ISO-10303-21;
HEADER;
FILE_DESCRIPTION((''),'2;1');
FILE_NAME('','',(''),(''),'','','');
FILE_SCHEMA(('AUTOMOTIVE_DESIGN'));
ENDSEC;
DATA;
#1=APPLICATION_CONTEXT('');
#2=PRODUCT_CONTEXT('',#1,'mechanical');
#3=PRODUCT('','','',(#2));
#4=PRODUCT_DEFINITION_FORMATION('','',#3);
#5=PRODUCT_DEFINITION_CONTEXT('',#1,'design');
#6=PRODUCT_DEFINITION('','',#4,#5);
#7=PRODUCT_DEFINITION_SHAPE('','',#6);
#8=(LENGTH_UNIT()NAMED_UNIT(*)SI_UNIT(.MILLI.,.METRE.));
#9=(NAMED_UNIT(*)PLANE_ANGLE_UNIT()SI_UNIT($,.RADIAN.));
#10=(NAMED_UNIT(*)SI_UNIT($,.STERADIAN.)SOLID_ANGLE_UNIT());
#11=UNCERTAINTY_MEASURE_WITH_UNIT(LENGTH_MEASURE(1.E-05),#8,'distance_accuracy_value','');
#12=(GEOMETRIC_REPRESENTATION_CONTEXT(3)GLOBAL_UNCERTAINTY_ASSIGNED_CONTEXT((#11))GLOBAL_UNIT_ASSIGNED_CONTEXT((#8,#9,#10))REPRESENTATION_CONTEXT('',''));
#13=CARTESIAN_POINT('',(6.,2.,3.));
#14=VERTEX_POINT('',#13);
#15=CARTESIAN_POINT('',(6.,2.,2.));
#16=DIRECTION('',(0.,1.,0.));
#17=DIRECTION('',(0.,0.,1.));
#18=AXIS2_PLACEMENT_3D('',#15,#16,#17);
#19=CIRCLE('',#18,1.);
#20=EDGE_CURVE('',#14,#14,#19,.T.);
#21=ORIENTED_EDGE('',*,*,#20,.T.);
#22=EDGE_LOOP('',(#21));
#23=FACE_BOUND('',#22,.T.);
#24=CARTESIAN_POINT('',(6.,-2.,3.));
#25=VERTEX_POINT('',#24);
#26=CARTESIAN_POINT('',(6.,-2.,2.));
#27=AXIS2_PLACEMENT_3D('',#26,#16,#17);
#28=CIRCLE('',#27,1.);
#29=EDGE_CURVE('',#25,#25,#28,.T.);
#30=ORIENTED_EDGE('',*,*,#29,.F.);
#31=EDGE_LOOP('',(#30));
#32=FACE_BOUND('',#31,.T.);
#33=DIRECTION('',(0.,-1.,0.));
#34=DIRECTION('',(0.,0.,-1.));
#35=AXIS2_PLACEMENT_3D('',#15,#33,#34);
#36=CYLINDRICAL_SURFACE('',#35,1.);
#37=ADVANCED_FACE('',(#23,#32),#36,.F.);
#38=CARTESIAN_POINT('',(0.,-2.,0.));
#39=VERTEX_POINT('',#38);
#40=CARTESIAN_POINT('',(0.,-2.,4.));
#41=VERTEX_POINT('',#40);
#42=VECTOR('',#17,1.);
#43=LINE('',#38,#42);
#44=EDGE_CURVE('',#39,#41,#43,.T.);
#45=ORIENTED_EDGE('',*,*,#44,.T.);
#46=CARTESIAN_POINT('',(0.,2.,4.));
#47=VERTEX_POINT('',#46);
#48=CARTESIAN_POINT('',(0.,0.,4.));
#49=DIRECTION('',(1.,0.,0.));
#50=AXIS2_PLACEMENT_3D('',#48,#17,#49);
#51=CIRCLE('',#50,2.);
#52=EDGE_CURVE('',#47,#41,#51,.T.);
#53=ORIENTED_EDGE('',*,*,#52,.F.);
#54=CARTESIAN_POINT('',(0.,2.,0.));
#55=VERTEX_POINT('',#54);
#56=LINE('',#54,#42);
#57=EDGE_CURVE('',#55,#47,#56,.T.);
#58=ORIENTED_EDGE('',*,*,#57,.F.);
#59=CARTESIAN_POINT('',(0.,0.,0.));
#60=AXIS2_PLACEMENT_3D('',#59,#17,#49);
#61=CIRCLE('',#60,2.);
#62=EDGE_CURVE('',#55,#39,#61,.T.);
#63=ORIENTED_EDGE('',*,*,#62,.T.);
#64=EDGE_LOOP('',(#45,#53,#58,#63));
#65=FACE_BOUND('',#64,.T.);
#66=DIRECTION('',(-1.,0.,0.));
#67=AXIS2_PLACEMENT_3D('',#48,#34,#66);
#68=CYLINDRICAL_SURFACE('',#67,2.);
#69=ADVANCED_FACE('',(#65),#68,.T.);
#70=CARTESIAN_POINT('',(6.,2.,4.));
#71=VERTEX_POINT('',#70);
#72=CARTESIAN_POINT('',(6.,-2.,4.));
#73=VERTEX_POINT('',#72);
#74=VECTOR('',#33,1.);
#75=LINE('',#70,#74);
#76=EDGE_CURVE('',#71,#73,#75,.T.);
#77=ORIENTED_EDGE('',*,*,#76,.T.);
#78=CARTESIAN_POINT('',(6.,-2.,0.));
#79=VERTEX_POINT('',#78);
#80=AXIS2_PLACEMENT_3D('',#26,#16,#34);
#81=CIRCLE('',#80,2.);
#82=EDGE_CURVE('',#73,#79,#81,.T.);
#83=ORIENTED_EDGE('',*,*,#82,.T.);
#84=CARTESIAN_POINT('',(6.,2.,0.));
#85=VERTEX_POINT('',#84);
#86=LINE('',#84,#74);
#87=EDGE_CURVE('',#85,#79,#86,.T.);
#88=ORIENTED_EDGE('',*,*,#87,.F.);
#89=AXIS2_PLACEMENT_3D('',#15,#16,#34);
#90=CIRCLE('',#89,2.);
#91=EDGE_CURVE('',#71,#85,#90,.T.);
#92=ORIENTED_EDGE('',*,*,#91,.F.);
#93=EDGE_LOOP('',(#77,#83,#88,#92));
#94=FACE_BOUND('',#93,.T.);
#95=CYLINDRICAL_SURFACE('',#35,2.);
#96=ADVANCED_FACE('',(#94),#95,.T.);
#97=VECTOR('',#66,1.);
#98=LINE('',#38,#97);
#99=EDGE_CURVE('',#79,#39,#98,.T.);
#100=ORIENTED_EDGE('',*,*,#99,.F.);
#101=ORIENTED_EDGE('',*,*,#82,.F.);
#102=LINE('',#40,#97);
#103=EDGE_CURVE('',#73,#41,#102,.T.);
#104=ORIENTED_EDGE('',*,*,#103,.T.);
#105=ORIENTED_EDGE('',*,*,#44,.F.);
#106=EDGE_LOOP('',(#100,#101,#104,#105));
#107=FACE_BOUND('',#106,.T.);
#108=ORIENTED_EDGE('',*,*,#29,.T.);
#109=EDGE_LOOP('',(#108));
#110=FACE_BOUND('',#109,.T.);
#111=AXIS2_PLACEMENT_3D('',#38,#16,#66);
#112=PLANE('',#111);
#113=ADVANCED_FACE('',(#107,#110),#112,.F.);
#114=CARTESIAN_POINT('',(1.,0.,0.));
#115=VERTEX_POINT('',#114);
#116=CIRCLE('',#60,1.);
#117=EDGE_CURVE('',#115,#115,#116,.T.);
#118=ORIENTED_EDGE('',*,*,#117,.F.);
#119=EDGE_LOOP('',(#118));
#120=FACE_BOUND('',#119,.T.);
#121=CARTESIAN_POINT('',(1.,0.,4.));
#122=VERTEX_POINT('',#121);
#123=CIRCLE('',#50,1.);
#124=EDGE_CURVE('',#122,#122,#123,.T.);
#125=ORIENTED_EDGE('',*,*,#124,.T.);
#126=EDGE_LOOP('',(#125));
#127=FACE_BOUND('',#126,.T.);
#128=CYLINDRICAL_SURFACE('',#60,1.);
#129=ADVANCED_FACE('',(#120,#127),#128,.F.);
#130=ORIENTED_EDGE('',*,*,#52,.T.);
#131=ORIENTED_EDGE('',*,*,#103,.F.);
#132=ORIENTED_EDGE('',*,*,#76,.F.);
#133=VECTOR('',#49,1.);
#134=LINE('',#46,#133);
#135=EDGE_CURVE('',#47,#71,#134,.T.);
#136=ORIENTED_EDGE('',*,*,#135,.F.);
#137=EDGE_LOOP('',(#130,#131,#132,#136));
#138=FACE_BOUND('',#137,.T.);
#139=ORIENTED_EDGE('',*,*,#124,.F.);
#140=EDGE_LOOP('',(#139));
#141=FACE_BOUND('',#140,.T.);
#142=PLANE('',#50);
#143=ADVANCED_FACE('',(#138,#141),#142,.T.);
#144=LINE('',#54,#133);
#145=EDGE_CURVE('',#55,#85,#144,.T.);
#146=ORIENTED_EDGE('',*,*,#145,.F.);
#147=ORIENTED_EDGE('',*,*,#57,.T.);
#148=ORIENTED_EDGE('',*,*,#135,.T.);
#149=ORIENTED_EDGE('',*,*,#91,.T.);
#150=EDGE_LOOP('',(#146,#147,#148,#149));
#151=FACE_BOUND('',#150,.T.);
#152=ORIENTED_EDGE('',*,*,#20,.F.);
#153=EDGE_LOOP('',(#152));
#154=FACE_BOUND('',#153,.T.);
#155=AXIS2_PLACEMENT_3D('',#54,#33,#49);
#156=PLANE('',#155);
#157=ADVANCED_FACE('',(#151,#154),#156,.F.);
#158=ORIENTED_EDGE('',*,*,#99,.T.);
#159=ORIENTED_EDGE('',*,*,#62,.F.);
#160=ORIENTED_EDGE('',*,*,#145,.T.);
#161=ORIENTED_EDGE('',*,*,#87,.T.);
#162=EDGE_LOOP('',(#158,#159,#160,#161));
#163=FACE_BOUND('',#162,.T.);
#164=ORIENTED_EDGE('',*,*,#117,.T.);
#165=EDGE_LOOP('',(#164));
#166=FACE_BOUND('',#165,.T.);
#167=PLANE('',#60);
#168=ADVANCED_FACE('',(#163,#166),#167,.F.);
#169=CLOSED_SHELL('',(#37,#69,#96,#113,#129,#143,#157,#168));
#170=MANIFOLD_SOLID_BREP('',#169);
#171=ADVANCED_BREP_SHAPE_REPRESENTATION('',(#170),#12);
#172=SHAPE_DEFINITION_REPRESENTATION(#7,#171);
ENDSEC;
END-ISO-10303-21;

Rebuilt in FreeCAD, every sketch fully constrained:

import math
import FreeCAD as App
import Part
import Sketcher

doc = App.newDocument("Part")
body = doc.addObject("PartDesign::Body", "Body")

# Sketch on XY plane
sketch1 = body.newObject("Sketcher::SketchObject", "Sketch")
sketch1.AttachmentSupport = (doc.getObject("XY_Plane"), [""])
sketch1.MapMode = "FlatFace"
sketch1.addGeometry(Part.Circle(App.Vector(0, 0, 0), App.Vector(0, 0, 1), 2), False)
sketch1.addConstraint([
    Sketcher.Constraint("Coincident", 0, 3, -1, 1),
    Sketcher.Constraint("Diameter", 0, 4.0),
])
pad1 = body.newObject("PartDesign::Pad", "Pad")
pad1.Profile = sketch1
pad1.Length = 4

# Sketch on XY plane
sketch2 = body.newObject("Sketcher::SketchObject", "Sketch001")
sketch2.AttachmentSupport = (doc.getObject("XY_Plane"), [""])
sketch2.MapMode = "FlatFace"
sketch2.addGeometry([
    Part.LineSegment(App.Vector(3, 2, 0), App.Vector(0, 2, 0)),  # 0
    Part.ArcOfCircle(Part.Circle(App.Vector(0, 0, 0), App.Vector(0, 0, 1), 2), math.radians(0), math.radians(90)),  # 1
    Part.ArcOfCircle(Part.Circle(App.Vector(0, 0, 0), App.Vector(0, 0, 1), 2), math.radians(-90), math.radians(0)),  # 2
    Part.LineSegment(App.Vector(0, -2, 0), App.Vector(3, -2, 0)),  # 3
    Part.LineSegment(App.Vector(3, -2, 0), App.Vector(3, 2, 0)),  # 4
], False)
sketch2.addConstraint([
    Sketcher.Constraint("Tangent", 0, 2, 1, 2),
    Sketcher.Constraint("Tangent", 1, 1, 2, 2),
    Sketcher.Constraint("Tangent", 2, 1, 3, 1),
    Sketcher.Constraint("Coincident", 3, 2, 4, 1),
    Sketcher.Constraint("Coincident", 4, 2, 0, 1),
    Sketcher.Constraint("Horizontal", 0),
    Sketcher.Constraint("Horizontal", 3),
    Sketcher.Constraint("Vertical", 4),
    Sketcher.Constraint("Coincident", 1, 3, -1, 1),
    Sketcher.Constraint("Equal", 1, 2),
    Sketcher.Constraint("PointOnObject", 1, 1, -1),
    Sketcher.Constraint("Radius", 1, 2.0),
    Sketcher.Constraint("DistanceX", 0, 2, 0, 1, 3.0),
])
pad2 = body.newObject("PartDesign::Pad", "Pad001")
pad2.Profile = sketch2
pad2.Length = 4

# Sketch on XY plane
sketch3 = body.newObject("Sketcher::SketchObject", "Sketch002")
sketch3.AttachmentSupport = (doc.getObject("XY_Plane"), [""])
sketch3.MapMode = "FlatFace"
sketch3.AttachmentOffset = App.Placement(App.Vector(0, 0, 4), App.Rotation())
sketch3.addGeometry(Part.Circle(App.Vector(0, 0, 0), App.Vector(0, 0, 1), 1), False)
sketch3.addConstraint([
    Sketcher.Constraint("Coincident", 0, 3, -1, 1),
    Sketcher.Constraint("Diameter", 0, 2.0),
])
pocket1 = body.newObject("PartDesign::Pocket", "Pocket")
pocket1.Profile = sketch3
pocket1.Type = "ThroughAll"

# Sketch on XZ plane
sketch4 = body.newObject("Sketcher::SketchObject", "Sketch003")
sketch4.AttachmentSupport = (doc.getObject("XZ_Plane"), [""])
sketch4.MapMode = "FlatFace"
sketch4.addGeometry([
    Part.LineSegment(App.Vector(3, 0, 0), App.Vector(3, 4, 0)),  # 0
    Part.LineSegment(App.Vector(3, 4, 0), App.Vector(6, 4, 0)),  # 1
    Part.ArcOfCircle(Part.Circle(App.Vector(6, 2, 0), App.Vector(0, 0, 1), 2), math.radians(-90), math.radians(90)),  # 2
    Part.LineSegment(App.Vector(6, 0, 0), App.Vector(3, 0, 0)),  # 3
    Part.Circle(App.Vector(6, 2, 0), App.Vector(0, 0, 1), 1),  # 4
], False)
sketch4.addConstraint([
    Sketcher.Constraint("Coincident", 0, 2, 1, 1),
    Sketcher.Constraint("Tangent", 1, 2, 2, 2),
    Sketcher.Constraint("Tangent", 2, 1, 3, 1),
    Sketcher.Constraint("Coincident", 3, 2, 0, 1),
    Sketcher.Constraint("Vertical", 0),
    Sketcher.Constraint("Horizontal", 1),
    Sketcher.Constraint("Horizontal", 3),
    Sketcher.Constraint("Coincident", 4, 3, 2, 3),
    Sketcher.Constraint("PointOnObject", 2, 1, -1),
    Sketcher.Constraint("Diameter", 4, 2.0),
    Sketcher.Constraint("Radius", 2, 2.0),
    Sketcher.Constraint("DistanceX", 1, 1, 1, 2, 3.0),
    Sketcher.Constraint("DistanceX", -1, 1, 2, 3, 6.0),
])
pad3 = body.newObject("PartDesign::Pad", "Pad002")
pad3.Profile = sketch4
pad3.Length = 4
pad3.Midplane = True

doc.recompute()
